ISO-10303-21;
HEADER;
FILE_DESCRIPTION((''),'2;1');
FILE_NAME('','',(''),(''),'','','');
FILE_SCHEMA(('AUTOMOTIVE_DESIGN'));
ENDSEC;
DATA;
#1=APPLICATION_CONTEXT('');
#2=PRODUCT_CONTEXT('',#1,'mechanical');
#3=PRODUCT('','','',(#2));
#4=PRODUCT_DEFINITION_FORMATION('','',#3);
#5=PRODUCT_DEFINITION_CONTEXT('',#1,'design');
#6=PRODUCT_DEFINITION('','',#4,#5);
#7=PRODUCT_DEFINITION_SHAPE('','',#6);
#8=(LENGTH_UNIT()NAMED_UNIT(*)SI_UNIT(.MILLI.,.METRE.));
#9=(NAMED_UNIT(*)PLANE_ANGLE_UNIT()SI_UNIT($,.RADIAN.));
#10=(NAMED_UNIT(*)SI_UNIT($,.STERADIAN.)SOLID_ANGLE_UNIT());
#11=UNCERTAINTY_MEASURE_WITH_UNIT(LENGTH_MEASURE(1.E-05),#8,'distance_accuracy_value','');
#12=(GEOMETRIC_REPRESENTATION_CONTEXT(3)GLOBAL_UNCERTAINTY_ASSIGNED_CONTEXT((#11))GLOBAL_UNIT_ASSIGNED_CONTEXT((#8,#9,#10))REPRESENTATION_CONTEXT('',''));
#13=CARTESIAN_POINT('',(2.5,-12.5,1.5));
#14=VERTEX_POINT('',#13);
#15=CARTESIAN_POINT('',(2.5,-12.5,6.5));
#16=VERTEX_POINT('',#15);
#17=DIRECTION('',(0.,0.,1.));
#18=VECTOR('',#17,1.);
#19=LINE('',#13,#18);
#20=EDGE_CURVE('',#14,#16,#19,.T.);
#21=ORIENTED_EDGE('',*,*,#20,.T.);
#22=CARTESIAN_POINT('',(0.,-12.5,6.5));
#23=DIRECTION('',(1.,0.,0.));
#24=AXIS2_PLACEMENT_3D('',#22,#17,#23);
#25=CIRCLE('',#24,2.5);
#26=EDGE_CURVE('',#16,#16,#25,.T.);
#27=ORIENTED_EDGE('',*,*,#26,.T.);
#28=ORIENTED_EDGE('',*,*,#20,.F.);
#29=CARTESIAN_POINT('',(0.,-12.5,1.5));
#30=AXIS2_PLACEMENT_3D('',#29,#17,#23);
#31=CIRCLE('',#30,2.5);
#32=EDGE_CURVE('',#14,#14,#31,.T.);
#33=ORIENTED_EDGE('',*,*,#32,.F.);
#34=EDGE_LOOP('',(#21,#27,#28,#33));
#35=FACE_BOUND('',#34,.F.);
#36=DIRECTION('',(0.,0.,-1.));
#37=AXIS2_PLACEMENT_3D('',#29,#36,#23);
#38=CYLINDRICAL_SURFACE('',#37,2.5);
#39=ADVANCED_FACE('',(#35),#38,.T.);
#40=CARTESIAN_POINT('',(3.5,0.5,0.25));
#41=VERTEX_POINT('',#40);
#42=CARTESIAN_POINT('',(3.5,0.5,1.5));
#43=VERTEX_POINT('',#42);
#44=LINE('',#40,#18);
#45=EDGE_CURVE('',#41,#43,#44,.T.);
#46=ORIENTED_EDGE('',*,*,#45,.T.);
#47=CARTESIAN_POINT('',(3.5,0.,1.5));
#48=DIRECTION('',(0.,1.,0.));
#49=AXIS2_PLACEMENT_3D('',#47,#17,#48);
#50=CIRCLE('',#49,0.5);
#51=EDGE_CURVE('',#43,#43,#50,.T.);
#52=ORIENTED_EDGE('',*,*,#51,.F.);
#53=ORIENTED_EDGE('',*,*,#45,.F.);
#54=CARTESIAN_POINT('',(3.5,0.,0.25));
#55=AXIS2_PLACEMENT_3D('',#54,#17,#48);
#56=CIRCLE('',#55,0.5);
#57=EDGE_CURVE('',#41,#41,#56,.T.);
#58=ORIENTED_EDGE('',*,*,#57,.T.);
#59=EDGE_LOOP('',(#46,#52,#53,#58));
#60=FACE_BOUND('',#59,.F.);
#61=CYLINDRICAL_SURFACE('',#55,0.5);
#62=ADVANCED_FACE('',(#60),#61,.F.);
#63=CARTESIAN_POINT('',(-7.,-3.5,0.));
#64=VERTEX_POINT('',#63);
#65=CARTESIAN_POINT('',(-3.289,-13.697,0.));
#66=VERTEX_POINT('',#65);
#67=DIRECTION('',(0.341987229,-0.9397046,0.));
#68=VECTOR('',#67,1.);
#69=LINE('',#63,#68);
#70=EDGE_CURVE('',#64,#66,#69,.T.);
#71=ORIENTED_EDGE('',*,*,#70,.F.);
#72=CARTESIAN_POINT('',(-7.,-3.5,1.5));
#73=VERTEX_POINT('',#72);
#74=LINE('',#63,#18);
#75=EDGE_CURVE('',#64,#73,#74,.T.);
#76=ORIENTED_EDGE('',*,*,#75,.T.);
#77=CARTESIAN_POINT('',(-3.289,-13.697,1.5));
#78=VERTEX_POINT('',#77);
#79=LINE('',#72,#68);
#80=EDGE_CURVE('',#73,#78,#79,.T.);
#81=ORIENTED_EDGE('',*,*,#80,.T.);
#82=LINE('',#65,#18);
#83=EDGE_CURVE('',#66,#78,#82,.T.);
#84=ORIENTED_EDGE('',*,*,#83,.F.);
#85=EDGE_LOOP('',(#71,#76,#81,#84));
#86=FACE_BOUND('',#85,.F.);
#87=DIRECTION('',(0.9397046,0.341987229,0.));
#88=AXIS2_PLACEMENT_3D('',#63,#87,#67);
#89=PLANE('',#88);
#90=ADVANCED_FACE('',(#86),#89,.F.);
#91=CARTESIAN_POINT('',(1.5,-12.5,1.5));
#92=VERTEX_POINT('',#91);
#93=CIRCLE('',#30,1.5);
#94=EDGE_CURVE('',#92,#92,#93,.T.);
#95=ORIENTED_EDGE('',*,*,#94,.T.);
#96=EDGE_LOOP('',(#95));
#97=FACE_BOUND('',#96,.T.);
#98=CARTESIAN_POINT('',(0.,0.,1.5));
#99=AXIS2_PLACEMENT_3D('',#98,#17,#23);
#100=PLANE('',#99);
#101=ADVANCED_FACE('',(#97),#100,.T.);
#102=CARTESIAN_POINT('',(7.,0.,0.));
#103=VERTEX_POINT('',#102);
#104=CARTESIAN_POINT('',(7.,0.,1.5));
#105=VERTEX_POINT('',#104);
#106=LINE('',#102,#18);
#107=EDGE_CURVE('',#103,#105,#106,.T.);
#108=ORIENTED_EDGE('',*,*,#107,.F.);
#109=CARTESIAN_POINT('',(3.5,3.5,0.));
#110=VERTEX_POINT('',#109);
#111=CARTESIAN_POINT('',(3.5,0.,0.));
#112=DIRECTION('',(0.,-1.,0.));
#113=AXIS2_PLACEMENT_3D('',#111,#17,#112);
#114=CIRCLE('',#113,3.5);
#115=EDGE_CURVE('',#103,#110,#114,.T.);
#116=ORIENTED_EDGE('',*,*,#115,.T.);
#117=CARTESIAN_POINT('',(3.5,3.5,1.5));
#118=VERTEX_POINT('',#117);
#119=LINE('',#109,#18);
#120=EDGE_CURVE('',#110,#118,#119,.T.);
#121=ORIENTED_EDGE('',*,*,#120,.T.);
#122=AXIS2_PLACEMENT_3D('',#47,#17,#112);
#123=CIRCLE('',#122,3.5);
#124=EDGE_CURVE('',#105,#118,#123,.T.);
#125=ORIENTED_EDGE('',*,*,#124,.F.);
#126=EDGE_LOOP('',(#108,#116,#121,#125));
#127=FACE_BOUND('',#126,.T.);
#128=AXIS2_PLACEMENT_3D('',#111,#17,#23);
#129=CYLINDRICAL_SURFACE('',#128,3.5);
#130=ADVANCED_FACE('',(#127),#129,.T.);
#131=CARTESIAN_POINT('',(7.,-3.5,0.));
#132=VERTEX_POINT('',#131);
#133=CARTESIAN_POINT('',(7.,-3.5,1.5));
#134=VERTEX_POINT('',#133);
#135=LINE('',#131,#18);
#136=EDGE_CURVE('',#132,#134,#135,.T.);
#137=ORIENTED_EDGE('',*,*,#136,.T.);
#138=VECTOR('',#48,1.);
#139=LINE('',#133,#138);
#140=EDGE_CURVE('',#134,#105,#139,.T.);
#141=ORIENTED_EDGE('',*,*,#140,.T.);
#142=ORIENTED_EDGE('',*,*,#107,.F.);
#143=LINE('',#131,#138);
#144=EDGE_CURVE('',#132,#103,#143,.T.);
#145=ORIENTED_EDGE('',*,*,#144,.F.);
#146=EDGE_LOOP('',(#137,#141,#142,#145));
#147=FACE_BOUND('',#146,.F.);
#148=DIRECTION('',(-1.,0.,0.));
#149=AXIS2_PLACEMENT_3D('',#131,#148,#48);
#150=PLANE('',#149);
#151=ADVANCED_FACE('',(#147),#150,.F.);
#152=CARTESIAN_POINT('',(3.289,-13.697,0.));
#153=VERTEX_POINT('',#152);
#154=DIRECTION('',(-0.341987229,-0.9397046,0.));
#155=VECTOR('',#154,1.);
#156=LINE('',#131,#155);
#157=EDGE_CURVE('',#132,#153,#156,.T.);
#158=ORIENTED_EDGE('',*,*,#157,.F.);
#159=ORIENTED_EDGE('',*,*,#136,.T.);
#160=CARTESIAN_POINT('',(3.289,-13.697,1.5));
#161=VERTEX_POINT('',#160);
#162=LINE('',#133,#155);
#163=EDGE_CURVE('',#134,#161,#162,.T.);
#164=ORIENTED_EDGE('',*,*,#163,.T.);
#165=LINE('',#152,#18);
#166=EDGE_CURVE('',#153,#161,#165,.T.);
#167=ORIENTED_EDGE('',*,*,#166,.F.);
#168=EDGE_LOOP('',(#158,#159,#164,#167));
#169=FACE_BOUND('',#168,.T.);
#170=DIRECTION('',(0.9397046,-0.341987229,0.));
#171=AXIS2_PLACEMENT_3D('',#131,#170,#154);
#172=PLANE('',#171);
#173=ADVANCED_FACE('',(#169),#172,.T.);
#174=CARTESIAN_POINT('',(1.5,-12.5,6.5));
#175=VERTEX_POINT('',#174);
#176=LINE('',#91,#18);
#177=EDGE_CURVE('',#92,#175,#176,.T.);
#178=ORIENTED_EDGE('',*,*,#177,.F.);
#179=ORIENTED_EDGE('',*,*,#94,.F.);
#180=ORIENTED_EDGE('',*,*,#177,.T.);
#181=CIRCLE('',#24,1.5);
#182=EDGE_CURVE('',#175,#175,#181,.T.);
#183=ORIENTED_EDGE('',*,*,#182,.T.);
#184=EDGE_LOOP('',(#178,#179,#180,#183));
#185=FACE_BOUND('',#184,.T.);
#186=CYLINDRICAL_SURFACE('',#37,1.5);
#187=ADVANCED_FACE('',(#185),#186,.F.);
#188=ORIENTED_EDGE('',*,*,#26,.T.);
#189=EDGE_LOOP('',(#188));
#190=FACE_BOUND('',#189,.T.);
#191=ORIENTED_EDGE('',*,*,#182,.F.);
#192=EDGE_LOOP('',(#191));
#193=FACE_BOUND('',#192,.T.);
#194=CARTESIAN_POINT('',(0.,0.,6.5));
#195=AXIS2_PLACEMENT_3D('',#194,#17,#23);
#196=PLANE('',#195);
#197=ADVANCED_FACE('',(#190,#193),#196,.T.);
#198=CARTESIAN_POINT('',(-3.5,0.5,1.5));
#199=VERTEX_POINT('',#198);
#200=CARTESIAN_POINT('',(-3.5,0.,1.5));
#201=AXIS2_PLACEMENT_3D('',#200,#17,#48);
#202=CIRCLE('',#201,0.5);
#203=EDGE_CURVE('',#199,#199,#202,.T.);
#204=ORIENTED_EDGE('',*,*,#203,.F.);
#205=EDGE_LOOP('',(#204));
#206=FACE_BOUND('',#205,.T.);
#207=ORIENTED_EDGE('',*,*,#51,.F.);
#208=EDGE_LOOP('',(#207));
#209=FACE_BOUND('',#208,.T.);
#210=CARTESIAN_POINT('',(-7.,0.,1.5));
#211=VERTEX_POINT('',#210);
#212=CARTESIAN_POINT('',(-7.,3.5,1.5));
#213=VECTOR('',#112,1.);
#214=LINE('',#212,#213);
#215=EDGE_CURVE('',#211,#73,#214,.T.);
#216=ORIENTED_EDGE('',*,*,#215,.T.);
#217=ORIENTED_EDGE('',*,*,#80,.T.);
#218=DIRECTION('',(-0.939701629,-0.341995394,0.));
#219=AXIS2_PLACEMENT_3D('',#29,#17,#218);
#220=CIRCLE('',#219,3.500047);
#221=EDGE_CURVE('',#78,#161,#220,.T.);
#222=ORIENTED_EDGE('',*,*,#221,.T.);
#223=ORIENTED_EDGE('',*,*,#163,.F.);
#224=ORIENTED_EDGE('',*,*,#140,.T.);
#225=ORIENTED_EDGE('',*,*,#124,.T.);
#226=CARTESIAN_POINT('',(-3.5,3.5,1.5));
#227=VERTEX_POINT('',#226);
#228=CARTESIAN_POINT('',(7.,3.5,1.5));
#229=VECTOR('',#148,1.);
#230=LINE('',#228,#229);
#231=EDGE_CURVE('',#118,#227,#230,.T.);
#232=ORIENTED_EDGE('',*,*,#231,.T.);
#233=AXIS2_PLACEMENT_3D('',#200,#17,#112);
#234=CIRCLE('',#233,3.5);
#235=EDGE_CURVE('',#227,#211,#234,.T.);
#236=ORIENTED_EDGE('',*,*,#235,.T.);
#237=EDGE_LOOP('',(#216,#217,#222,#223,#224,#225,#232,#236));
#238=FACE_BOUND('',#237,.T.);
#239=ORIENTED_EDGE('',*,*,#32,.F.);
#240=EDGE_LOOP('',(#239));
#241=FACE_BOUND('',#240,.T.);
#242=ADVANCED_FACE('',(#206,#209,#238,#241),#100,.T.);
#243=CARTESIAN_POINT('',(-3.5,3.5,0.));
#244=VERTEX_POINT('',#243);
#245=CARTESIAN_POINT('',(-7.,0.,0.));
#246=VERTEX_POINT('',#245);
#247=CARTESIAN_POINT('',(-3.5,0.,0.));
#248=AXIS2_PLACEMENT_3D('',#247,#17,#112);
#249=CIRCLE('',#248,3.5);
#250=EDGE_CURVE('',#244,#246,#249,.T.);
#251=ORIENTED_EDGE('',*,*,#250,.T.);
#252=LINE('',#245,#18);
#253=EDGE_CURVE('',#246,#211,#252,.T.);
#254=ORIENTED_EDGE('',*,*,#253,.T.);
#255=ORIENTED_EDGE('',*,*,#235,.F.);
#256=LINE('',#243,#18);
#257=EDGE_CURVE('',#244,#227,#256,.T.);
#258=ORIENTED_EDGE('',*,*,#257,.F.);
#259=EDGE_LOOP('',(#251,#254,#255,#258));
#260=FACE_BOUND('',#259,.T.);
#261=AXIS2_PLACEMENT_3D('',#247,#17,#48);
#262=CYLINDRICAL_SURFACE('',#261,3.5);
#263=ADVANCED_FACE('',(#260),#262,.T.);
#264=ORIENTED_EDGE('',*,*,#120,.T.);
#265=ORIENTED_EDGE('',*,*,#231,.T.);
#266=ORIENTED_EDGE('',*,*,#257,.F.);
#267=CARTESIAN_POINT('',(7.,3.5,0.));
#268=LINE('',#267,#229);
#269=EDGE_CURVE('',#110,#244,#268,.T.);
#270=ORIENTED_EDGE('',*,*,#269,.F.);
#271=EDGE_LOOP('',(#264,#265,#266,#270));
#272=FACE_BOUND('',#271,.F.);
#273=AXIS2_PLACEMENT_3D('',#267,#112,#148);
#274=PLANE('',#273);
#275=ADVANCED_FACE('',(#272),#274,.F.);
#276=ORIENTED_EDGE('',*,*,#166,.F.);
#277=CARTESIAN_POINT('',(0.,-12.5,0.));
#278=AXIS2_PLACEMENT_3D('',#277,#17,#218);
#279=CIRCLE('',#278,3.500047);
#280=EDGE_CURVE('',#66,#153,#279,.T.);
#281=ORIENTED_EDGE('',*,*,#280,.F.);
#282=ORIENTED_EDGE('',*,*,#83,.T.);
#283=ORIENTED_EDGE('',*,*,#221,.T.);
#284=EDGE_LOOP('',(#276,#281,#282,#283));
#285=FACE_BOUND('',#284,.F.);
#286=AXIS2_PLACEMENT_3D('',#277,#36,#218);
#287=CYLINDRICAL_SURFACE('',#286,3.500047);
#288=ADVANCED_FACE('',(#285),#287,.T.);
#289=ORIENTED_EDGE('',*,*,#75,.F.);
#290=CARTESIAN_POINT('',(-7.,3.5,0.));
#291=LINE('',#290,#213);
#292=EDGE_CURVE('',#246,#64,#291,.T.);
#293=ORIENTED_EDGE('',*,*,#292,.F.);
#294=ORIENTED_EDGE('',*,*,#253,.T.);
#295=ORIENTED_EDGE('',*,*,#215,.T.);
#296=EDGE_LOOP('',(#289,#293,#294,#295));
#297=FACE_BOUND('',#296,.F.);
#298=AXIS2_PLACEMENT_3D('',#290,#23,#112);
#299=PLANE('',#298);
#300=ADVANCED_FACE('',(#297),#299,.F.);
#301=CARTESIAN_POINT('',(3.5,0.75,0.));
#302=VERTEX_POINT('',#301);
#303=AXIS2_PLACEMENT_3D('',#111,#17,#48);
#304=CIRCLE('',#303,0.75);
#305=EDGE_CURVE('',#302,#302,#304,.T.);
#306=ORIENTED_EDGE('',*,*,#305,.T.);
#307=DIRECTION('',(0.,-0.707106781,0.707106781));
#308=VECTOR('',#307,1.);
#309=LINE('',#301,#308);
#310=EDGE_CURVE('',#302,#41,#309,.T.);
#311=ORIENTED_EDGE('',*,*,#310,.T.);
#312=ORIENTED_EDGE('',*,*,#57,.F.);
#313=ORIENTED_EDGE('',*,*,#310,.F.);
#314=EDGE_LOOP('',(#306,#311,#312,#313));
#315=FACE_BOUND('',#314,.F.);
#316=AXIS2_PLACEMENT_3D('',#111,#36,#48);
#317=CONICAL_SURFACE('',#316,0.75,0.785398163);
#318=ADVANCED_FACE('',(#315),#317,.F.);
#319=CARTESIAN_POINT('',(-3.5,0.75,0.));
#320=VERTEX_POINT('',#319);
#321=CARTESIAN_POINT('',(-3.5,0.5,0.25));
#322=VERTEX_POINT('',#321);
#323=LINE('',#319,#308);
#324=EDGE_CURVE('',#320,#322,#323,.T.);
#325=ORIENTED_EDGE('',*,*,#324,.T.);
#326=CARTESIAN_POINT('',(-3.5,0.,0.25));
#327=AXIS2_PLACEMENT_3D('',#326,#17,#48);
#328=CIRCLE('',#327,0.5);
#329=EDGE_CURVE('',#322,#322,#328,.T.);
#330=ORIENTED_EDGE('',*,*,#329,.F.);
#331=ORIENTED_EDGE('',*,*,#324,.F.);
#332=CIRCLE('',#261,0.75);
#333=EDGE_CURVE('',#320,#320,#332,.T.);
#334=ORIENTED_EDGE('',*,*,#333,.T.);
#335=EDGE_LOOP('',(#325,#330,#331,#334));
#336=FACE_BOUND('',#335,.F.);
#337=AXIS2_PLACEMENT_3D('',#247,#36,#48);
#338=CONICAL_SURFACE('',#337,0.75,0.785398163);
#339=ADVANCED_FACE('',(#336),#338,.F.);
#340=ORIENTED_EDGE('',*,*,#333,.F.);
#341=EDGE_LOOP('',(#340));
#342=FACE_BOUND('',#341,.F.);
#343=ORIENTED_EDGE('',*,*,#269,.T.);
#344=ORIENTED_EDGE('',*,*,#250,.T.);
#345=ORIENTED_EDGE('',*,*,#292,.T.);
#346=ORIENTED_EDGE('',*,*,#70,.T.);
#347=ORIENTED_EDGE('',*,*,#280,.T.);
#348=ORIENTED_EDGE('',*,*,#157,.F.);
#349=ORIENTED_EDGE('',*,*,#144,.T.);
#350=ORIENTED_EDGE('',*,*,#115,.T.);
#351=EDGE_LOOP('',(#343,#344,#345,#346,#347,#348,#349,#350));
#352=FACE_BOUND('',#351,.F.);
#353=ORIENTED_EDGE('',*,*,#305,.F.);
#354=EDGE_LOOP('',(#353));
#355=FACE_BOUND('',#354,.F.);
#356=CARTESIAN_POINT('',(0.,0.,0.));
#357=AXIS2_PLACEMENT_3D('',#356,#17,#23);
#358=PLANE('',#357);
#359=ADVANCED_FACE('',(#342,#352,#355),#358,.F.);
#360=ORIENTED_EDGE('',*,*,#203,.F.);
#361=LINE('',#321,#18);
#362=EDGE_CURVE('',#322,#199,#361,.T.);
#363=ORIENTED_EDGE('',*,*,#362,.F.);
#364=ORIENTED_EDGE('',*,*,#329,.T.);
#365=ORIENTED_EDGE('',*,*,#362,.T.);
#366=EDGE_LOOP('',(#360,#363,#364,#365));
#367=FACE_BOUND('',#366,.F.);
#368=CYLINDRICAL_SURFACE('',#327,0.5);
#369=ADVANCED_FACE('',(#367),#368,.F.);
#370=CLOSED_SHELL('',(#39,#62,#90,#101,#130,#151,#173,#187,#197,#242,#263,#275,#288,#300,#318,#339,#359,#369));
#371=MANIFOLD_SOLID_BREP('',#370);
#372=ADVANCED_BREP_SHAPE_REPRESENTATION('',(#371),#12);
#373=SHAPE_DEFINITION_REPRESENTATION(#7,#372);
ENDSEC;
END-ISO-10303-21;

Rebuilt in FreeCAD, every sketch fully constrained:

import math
import FreeCAD as App
import Part
import Sketcher


def edges_at(feature, points):
    """Names of the edges that pass closest to the given points."""
    edges = feature.Shape.Edges
    near = lambda p: min(range(len(edges)), key=lambda i: edges[i].distToShape(Part.Vertex(*p))[0])
    return sorted({f"Edge{near(p) + 1}" for p in points})

doc = App.newDocument("Part")
body = doc.addObject("PartDesign::Body", "Body")

# Sketch on XY plane
sketch1 = body.newObject("Sketcher::SketchObject", "Sketch")
sketch1.AttachmentSupport = (doc.getObject("XY_Plane"), [""])
sketch1.MapMode = "FlatFace"
sketch1.addGeometry([
    Part.LineSegment(App.Vector(3.3, -13.7, 0), App.Vector(7, -3.5, 0)),  # 0
    Part.LineSegment(App.Vector(7, -3.5, 0), App.Vector(7, 3.5, 0)),  # 1
    Part.LineSegment(App.Vector(7, 3.5, 0), App.Vector(-7, 3.5, 0)),  # 2
    Part.LineSegment(App.Vector(-7, 3.5, 0), App.Vector(-7, -3.5, 0)),  # 3
    Part.LineSegment(App.Vector(-7, -3.5, 0), App.Vector(-3.3, -13.7, 0)),  # 4
    Part.ArcOfCircle(Part.Circle(App.Vector(0, -12.5, 0), App.Vector(0, 0, 1), 3.5), math.radians(-160), math.radians(-20)),  # 5
], False)
sketch1.addConstraint([
    Sketcher.Constraint("Coincident", 0, 2, 1, 1),
    Sketcher.Constraint("Coincident", 1, 2, 2, 1),
    Sketcher.Constraint("Coincident", 2, 2, 3, 1),
    Sketcher.Constraint("Coincident", 3, 2, 4, 1),
    Sketcher.Constraint("Tangent", 4, 2, 5, 1),
    Sketcher.Constraint("Tangent", 5, 2, 0, 1),
    Sketcher.Constraint("Vertical", 1),
    Sketcher.Constraint("Horizontal", 2),
    Sketcher.Constraint("Vertical", 3),
    Sketcher.Constraint("Symmetric", 0, 2, 2, 2, -1, 1),
    Sketcher.Constraint("Symmetric", 4, 2, 5, 2, -2),
    Sketcher.Constraint("Radius", 5, 3.5),
    Sketcher.Constraint("DistanceX", 2, 2, 2, 1, 14.0),
    Sketcher.Constraint("DistanceY", 1, 1, 1, 2, 7.0),
    Sketcher.Constraint("DistanceY", 5, 3, 0, 2, 9.0),
])
pad1 = body.newObject("PartDesign::Pad", "Pad")
pad1.Profile = sketch1
pad1.Length = 1.5

# Sketch on XY plane
sketch2 = body.newObject("Sketcher::SketchObject", "Sketch001")
sketch2.AttachmentSupport = (doc.getObject("XY_Plane"), [""])
sketch2.MapMode = "FlatFace"
sketch2.AttachmentOffset = App.Placement(App.Vector(0, 0, 1.5), App.Rotation())
sketch2.addGeometry([
    Part.Circle(App.Vector(0, -12.5, 0), App.Vector(0, 0, 1), 2.5),
    Part.Circle(App.Vector(0, -12.5, 0), App.Vector(0, 0, 1), 1.5),
], False)
sketch2.addConstraint([
    Sketcher.Constraint("Coincident", 1, 3, 0, 3),
    Sketcher.Constraint("PointOnObject", 0, 3, -2),
    Sketcher.Constraint("Diameter", 0, 5.0),
    Sketcher.Constraint("Diameter", 1, 3.0),
    Sketcher.Constraint("DistanceY", 0, 3, -1, 1, 12.5),
])
pad2 = body.newObject("PartDesign::Pad", "Pad001")
pad2.Profile = sketch2
pad2.Length = 5
doc.recompute()

fillet = body.newObject("PartDesign::Fillet", "Fillet")
fillet.Base = (pad2, edges_at(pad2, [(7, 3.5, 0.75), (-7, 3.5, 0.75)]))
fillet.Radius = 3.5

# Sketch on XY plane
sketch3 = body.newObject("Sketcher::SketchObject", "Sketch002")
sketch3.AttachmentSupport = (doc.getObject("XY_Plane"), [""])
sketch3.MapMode = "FlatFace"
sketch3.addGeometry([
    Part.Circle(App.Vector(-3.5, 0, 0), App.Vector(0, 0, 1), 0.5),
    Part.Circle(App.Vector(3.5, 0, 0), App.Vector(0, 0, 1), 0.5),
], False)
sketch3.addConstraint([
    Sketcher.Constraint("Equal", 0, 1),
    Sketcher.Constraint("Symmetric", 0, 3, 1, 3, -1, 1),
    Sketcher.Constraint("PointOnObject", 0, 3, -1),
    Sketcher.Constraint("Diameter", 0, 1.0),
    Sketcher.Constraint("DistanceX", 0, 3, 1, 3, 7.0),
])
doc.recompute()
hole = body.newObject("PartDesign::Hole", "Hole")
hole.Profile = sketch3
hole.ThreadType = "None"
hole.Diameter = 1
hole.DepthType = "ThroughAll"
hole.HoleCutType = "Countersink"
hole.HoleCutDiameter = 1.5
hole.HoleCutCountersinkAngle = 90
hole.Reversed = True

doc.recompute()
